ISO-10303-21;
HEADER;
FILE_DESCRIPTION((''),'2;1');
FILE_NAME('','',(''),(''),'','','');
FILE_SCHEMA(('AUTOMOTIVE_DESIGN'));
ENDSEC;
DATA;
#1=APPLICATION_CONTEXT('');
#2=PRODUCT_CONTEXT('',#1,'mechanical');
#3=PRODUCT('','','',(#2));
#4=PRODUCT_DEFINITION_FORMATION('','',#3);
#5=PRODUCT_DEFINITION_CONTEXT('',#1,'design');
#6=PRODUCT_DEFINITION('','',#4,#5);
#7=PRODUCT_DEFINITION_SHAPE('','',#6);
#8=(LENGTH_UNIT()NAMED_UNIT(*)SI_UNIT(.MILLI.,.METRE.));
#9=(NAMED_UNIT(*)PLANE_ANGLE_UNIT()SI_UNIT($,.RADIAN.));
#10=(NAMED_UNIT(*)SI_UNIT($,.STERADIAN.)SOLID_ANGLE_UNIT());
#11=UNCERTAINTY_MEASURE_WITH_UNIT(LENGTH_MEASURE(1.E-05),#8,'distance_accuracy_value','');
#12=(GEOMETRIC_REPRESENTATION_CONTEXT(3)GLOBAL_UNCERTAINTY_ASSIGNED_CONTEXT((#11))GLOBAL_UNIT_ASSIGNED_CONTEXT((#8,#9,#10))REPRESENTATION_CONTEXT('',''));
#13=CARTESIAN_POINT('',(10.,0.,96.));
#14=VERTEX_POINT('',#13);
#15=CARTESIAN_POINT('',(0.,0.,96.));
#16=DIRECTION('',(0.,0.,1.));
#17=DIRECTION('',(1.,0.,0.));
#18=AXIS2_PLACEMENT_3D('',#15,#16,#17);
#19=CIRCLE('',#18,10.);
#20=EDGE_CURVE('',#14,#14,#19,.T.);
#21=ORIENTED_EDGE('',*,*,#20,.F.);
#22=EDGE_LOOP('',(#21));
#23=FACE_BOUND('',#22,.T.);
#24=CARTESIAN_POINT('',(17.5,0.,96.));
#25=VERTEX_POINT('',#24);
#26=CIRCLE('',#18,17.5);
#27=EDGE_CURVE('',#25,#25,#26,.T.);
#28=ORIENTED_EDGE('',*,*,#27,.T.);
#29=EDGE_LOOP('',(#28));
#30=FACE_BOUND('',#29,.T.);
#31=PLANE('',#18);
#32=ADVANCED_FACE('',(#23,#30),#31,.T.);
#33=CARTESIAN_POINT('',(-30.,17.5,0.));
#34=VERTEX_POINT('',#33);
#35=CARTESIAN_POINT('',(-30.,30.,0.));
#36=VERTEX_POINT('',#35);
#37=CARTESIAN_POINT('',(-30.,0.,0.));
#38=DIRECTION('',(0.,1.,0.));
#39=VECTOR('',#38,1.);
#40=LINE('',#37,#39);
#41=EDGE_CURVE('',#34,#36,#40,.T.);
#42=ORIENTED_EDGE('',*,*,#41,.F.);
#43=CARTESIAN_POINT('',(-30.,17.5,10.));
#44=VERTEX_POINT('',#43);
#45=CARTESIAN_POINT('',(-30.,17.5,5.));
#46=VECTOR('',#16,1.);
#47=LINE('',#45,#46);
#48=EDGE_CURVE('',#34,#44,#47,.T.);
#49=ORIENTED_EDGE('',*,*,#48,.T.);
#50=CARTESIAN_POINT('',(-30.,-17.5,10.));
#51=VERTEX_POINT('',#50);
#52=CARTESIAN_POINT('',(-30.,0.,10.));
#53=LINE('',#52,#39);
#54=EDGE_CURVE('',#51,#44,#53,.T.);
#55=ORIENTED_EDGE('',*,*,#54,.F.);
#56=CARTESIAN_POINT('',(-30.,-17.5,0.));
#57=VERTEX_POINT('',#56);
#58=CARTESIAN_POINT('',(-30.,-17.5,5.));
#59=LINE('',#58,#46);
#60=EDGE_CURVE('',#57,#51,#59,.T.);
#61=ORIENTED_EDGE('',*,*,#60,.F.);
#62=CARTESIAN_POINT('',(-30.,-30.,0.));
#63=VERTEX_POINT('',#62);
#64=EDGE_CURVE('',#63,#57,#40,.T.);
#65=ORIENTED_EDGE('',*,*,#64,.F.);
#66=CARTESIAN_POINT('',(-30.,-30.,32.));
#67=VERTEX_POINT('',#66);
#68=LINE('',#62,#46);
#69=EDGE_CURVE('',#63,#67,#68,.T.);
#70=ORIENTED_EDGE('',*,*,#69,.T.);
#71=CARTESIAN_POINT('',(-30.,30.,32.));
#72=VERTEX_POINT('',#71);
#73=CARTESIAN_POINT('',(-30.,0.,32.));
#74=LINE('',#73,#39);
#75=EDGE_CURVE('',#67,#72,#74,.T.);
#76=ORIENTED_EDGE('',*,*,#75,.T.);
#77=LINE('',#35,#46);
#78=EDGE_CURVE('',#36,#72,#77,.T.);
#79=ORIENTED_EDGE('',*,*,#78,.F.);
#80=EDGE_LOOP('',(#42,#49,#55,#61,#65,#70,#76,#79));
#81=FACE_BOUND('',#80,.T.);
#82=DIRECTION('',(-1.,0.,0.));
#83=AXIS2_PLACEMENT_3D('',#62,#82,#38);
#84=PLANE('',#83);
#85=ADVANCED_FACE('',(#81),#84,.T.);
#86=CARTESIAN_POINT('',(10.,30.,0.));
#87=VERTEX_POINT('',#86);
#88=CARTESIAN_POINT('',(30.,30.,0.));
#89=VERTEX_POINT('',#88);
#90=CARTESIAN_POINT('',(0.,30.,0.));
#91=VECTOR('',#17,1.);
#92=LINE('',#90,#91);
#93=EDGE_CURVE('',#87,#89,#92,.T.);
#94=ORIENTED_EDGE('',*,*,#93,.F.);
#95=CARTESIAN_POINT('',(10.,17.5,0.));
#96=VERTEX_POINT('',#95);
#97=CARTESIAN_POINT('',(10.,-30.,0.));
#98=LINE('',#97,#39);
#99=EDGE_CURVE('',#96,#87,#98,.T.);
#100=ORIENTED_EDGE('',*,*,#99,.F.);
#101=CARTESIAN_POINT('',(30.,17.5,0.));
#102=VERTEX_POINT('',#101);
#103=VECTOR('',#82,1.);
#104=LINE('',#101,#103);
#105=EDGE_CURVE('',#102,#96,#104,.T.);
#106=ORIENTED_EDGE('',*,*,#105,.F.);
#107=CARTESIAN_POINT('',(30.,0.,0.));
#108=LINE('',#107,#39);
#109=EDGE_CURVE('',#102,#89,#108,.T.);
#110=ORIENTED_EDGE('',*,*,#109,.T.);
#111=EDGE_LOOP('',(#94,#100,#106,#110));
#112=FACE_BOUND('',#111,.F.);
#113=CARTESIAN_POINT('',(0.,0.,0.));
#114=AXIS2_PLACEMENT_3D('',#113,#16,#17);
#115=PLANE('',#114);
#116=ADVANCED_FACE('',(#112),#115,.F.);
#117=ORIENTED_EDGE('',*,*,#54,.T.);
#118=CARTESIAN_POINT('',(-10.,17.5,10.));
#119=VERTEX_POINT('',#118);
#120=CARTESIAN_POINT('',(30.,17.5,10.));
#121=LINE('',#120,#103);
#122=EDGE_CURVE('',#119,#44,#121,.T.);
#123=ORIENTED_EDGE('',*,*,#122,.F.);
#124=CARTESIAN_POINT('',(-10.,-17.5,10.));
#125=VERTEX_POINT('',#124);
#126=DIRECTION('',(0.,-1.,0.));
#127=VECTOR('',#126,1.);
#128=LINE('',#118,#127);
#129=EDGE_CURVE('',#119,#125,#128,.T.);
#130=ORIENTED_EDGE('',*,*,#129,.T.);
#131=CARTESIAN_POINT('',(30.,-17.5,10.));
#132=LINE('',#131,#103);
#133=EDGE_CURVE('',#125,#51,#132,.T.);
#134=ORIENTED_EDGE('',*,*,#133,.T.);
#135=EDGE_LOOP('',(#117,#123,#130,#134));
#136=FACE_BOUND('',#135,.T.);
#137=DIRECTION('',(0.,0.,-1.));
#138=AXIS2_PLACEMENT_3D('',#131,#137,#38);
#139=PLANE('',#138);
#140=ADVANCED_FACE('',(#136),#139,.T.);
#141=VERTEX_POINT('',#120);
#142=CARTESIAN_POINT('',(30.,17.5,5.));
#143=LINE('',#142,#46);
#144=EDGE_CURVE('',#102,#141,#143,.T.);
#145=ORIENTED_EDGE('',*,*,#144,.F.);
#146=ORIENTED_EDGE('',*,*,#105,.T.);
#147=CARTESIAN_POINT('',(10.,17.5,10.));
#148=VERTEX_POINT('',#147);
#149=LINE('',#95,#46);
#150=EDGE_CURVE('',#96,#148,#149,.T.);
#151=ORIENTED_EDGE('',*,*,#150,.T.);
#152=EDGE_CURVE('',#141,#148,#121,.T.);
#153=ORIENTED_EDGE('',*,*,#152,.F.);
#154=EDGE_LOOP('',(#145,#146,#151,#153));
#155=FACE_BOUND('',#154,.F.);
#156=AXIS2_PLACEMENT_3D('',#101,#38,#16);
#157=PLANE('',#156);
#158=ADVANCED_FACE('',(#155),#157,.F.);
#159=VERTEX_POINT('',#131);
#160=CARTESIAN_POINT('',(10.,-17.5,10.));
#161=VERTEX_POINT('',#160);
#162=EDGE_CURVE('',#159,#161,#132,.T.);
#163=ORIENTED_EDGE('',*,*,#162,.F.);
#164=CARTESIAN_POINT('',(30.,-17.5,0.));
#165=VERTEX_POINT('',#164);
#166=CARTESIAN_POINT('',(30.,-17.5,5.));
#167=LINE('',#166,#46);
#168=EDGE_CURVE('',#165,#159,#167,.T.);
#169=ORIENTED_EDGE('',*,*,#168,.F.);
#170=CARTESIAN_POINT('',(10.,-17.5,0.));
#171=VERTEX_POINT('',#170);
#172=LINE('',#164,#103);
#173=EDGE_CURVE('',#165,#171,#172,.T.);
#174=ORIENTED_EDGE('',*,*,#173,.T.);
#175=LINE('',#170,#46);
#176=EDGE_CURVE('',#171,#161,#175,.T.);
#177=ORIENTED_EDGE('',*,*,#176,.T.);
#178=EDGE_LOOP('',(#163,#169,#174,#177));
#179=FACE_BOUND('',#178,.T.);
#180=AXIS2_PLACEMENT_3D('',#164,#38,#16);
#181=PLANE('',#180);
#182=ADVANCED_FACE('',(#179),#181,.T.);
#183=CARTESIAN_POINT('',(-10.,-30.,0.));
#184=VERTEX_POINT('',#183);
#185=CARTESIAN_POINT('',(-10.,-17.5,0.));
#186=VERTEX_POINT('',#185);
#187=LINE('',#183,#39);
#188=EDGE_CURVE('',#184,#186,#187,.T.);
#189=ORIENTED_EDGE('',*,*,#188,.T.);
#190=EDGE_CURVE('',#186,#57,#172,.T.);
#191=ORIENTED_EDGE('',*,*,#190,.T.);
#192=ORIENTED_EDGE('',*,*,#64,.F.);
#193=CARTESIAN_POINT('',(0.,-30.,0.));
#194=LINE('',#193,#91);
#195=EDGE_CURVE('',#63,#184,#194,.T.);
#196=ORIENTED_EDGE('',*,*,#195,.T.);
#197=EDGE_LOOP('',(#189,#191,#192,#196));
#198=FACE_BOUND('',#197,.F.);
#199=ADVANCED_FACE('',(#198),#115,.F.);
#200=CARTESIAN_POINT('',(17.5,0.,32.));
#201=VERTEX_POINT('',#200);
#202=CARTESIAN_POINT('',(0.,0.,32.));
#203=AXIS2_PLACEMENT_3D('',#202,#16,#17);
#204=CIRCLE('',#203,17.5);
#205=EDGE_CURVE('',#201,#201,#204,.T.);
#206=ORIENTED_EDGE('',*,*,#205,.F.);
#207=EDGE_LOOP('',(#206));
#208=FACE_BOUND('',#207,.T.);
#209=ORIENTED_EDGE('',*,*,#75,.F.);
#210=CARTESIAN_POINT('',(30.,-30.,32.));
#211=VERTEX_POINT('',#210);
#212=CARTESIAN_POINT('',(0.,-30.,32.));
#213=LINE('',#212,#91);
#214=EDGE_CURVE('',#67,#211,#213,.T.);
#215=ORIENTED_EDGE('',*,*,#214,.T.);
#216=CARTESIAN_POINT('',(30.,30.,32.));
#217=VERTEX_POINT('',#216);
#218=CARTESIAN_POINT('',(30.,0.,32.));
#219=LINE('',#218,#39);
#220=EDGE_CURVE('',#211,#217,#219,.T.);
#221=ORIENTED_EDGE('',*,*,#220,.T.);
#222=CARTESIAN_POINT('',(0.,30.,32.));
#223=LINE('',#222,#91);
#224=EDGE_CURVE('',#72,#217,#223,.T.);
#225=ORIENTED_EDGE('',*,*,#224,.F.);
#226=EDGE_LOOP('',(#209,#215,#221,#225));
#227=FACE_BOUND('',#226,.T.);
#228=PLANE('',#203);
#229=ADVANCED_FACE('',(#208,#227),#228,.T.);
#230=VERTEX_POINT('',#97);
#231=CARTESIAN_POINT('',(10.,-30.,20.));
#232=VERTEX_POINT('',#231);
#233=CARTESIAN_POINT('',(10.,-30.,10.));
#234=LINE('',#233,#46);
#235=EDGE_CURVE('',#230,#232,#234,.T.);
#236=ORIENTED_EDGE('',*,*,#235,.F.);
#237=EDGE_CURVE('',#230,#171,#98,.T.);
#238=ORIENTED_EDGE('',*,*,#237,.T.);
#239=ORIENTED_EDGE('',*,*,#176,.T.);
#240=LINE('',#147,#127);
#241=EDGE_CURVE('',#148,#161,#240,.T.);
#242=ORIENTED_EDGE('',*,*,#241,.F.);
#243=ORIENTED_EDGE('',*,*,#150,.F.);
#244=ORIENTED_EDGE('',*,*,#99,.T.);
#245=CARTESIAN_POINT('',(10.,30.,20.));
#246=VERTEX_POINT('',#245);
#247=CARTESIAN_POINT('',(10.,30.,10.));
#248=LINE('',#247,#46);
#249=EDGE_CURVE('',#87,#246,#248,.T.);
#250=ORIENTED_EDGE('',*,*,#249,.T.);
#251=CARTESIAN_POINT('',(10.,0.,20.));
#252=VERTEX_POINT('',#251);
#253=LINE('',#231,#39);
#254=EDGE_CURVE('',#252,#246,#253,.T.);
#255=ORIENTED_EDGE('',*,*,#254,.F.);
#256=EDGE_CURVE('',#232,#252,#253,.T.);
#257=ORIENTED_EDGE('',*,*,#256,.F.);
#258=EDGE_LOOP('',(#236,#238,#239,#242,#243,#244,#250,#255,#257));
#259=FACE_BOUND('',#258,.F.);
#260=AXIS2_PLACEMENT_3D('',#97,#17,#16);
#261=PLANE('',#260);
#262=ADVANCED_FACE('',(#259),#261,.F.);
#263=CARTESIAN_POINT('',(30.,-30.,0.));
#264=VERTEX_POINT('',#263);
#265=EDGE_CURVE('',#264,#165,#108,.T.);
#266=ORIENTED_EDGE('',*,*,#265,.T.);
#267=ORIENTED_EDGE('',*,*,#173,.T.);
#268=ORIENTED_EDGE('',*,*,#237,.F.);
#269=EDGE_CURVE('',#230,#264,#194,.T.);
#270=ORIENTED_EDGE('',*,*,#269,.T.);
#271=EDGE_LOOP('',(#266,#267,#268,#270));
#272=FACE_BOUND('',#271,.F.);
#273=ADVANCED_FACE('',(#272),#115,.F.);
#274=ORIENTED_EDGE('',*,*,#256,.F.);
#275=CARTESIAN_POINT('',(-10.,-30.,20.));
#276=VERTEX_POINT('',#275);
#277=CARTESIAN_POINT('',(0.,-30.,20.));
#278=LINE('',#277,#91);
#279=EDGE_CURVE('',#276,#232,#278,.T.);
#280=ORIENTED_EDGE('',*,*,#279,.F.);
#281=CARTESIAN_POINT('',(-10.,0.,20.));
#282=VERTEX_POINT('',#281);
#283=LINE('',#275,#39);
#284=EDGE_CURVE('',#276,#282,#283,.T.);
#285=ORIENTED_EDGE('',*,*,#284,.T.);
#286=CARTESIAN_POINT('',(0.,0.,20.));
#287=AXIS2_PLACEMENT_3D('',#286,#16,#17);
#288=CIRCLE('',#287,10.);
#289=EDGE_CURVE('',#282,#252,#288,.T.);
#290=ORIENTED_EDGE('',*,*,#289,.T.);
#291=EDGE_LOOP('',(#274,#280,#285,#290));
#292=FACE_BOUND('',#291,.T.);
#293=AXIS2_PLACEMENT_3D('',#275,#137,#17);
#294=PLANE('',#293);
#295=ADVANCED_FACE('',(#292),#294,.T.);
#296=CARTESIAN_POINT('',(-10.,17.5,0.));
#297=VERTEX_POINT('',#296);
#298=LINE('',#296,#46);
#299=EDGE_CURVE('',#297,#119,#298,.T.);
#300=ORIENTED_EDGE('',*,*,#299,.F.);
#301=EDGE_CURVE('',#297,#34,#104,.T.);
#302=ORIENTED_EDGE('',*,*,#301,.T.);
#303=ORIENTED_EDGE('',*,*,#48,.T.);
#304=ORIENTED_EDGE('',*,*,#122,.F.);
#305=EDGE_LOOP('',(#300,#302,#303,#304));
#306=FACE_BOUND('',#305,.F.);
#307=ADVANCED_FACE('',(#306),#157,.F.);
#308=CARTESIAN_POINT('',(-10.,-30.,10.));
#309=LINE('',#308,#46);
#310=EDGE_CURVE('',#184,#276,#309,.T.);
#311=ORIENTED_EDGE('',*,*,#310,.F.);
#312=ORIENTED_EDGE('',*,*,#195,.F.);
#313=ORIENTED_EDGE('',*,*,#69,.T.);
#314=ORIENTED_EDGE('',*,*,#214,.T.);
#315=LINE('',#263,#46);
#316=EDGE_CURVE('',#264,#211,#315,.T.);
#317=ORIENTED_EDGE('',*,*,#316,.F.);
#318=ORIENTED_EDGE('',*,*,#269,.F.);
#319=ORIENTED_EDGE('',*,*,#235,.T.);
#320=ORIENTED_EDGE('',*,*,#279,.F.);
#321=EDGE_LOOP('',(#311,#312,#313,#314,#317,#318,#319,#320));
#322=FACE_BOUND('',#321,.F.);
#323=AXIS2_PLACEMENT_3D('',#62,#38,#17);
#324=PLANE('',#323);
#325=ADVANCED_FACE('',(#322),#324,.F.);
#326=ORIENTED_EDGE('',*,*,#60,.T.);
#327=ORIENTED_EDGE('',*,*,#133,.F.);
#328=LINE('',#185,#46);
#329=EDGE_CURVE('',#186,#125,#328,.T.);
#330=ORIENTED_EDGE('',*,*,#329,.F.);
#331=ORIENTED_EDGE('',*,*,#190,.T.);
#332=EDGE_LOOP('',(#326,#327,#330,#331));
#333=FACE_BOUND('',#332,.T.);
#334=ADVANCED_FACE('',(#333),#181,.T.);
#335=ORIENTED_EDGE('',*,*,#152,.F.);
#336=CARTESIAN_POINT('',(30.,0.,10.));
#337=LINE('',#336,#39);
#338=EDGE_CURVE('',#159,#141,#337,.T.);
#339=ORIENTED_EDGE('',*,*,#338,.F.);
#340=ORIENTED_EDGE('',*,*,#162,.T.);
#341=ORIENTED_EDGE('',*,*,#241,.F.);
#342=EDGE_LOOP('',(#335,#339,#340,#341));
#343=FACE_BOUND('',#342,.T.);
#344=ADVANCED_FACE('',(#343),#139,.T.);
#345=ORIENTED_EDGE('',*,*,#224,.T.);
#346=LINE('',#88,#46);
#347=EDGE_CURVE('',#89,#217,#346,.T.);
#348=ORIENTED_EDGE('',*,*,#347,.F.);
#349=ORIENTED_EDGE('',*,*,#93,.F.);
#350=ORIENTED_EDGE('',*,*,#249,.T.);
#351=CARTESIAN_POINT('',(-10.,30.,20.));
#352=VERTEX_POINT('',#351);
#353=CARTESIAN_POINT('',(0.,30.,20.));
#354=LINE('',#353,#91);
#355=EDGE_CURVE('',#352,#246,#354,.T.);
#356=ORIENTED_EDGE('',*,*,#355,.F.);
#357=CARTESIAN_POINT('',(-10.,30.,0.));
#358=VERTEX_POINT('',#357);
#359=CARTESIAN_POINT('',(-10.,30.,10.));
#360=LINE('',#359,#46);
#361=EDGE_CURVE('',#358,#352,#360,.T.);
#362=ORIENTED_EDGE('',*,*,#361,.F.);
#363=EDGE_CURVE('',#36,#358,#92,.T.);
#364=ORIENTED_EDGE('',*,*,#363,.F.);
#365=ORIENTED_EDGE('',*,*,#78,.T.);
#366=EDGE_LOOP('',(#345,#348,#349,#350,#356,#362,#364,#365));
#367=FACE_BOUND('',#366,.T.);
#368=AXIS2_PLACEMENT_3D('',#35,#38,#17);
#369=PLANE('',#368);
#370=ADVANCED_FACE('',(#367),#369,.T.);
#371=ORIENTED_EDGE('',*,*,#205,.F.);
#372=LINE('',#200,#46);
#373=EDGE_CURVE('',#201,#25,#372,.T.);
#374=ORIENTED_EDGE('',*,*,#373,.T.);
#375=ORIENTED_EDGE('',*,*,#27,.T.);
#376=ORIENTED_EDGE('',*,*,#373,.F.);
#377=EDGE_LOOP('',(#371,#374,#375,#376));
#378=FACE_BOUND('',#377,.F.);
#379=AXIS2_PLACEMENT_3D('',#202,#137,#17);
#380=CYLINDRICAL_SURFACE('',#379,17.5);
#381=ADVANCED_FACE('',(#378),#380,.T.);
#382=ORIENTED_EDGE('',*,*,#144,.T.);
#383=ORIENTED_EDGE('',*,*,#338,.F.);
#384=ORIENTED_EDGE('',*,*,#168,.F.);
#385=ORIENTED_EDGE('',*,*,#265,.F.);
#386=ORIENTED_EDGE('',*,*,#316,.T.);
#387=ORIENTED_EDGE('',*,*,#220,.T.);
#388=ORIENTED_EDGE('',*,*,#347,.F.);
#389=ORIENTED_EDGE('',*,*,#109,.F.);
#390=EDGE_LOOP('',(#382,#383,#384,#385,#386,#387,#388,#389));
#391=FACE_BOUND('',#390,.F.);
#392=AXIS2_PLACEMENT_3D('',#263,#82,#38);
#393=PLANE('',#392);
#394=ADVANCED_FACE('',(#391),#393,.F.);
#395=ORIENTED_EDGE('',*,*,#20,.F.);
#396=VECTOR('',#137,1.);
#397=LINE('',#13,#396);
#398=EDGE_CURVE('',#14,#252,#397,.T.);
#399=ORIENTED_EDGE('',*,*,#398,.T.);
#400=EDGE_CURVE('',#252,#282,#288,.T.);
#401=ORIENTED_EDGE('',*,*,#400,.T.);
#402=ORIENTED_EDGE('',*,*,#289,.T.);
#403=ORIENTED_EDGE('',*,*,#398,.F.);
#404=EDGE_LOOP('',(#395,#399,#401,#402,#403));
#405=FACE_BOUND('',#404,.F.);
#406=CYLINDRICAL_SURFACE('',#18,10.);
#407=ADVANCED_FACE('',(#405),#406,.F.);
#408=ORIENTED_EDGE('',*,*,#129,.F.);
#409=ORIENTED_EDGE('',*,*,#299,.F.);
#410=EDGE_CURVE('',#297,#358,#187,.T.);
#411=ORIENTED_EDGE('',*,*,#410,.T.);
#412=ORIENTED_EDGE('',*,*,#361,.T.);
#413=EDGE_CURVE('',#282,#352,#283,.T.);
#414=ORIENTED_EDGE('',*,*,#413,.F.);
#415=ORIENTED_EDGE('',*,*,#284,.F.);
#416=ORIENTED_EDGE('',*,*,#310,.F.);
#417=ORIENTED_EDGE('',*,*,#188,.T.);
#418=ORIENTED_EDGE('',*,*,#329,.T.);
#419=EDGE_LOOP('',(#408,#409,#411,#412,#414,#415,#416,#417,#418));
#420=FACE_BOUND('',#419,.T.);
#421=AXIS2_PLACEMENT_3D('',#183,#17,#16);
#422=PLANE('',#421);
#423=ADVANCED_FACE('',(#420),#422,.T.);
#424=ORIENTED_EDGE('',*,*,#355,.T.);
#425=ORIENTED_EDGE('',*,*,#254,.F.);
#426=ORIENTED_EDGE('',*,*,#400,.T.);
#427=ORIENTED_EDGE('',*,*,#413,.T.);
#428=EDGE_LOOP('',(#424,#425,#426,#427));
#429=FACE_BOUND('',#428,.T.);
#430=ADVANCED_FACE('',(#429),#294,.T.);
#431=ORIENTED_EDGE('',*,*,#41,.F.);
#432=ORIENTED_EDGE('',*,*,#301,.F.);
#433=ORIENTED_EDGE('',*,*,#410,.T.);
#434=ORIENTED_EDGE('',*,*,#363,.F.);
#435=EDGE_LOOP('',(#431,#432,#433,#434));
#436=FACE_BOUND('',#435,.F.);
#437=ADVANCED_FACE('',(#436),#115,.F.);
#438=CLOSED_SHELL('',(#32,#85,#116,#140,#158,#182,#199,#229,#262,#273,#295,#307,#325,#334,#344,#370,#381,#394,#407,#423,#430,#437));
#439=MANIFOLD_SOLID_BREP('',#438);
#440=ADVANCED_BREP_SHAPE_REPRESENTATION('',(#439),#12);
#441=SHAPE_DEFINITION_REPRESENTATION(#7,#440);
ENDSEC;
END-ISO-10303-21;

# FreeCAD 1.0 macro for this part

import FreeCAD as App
import Part
import Sketcher
from FreeCAD import Vector

doc = App.newDocument("Part")
params = doc.addObject("Spreadsheet::Sheet", "Params")
for row, (alias, value) in enumerate([
    ("sketch1_width", "60 mm"),
    ("pad1_length", "32 mm"),
    ("sketch2_diameter", "35 mm"),
    ("pad2_length", "64 mm"),
    ("sketch3_width", "20 mm"),
    ("pocket1_length", "60 mm"),
    ("sketch4_width", "35 mm"),
    ("sketch4_height", "10 mm"),
    ("pocket2_length", "60 mm"),
    ("sketch5_diameter", "20 mm"),
    ("pocket3_length", "96 mm"),
], start=1):
    params.set(f"A{row}", alias)
    params.set(f"B{row}", "=" + value)
    params.setAlias(f"B{row}", alias)

body = doc.addObject("PartDesign::Body", "Body")

# Sketch on XY plane
sketch1 = doc.addObject("Sketcher::SketchObject", "Sketch")
body.addObject(sketch1)
sketch1.AttachmentSupport = (doc.XY_Plane, [""])
sketch1.MapMode = "FlatFace"
sketch1.addGeometry([
    Part.LineSegment(Vector(-30, 30, 0), Vector(-30, -30, 0)),
    Part.LineSegment(Vector(-30, -30, 0), Vector(30, -30, 0)),
    Part.LineSegment(Vector(30, -30, 0), Vector(30, 30, 0)),
    Part.LineSegment(Vector(30, 30, 0), Vector(-30, 30, 0)),
], False)
sketch1.addConstraint([
    Sketcher.Constraint("Coincident", 0, 2, 1, 1),
    Sketcher.Constraint("Coincident", 1, 2, 2, 1),
    Sketcher.Constraint("Coincident", 2, 2, 3, 1),
    Sketcher.Constraint("Coincident", 3, 2, 0, 1),
    Sketcher.Constraint("Vertical", 0),
    Sketcher.Constraint("Horizontal", 1),
    Sketcher.Constraint("Vertical", 2),
    Sketcher.Constraint("Horizontal", 3),
    Sketcher.Constraint("Symmetric", 0, 2, 2, 2, -1, 1),
    Sketcher.Constraint("Equal", 3, 0),
    Sketcher.Constraint("DistanceX", 1, 1, 1, 2, 60.0),
])
sketch1.setExpression("Constraints[10]", "Params.sketch1_width")
pad1 = doc.addObject("PartDesign::Pad", "Pad")
body.addObject(pad1)
pad1.Profile = sketch1
pad1.setExpression("Length", "Params.pad1_length")

# Sketch on XY plane
sketch2 = doc.addObject("Sketcher::SketchObject", "Sketch001")
body.addObject(sketch2)
sketch2.AttachmentSupport = (doc.XY_Plane, [""])
sketch2.MapMode = "FlatFace"
sketch2.AttachmentOffset = App.Placement(Vector(0, 0, 32), App.Rotation())
sketch2.addGeometry(Part.Circle(Vector(0, 0, 0), Vector(0, 0, 1), 18), False)
sketch2.addConstraint([
    Sketcher.Constraint("Coincident", 0, 3, -1, 1),
    Sketcher.Constraint("Diameter", 0, 35.0),
])
sketch2.setExpression("Constraints[1]", "Params.sketch2_diameter")
pad2 = doc.addObject("PartDesign::Pad", "Pad001")
body.addObject(pad2)
pad2.Profile = sketch2
pad2.setExpression("Length", "Params.pad2_length")

# Sketch on XZ plane
sketch3 = doc.addObject("Sketcher::SketchObject", "Sketch002")
body.addObject(sketch3)
sketch3.AttachmentSupport = (doc.XZ_Plane, [""])
sketch3.MapMode = "FlatFace"
sketch3.AttachmentOffset = App.Placement(Vector(0, 0, 30), App.Rotation())
sketch3.addGeometry([
    Part.LineSegment(Vector(-10, 20, 0), Vector(-10, 0, 0)),
    Part.LineSegment(Vector(-10, 0, 0), Vector(10, 0, 0)),
    Part.LineSegment(Vector(10, 0, 0), Vector(10, 20, 0)),
    Part.LineSegment(Vector(10, 20, 0), Vector(-10, 20, 0)),
], False)
sketch3.addConstraint([
    Sketcher.Constraint("Coincident", 0, 2, 1, 1),
    Sketcher.Constraint("Coincident", 1, 2, 2, 1),
    Sketcher.Constraint("Coincident", 2, 2, 3, 1),
    Sketcher.Constraint("Coincident", 3, 2, 0, 1),
    Sketcher.Constraint("Vertical", 0),
    Sketcher.Constraint("Horizontal", 1),
    Sketcher.Constraint("Vertical", 2),
    Sketcher.Constraint("Horizontal", 3),
    Sketcher.Constraint("Symmetric", 0, 2, 1, 2, -1, 1),
    Sketcher.Constraint("Equal", 3, 0),
    Sketcher.Constraint("DistanceX", 1, 1, 1, 2, 20.0),
])
sketch3.setExpression("Constraints[10]", "Params.sketch3_width")
pocket1 = doc.addObject("PartDesign::Pocket", "Pocket")
body.addObject(pocket1)
pocket1.Profile = sketch3
pocket1.setExpression("Length", "Params.pocket1_length")

# Sketch on YZ plane
sketch4 = doc.addObject("Sketcher::SketchObject", "Sketch003")
body.addObject(sketch4)
sketch4.AttachmentSupport = (doc.YZ_Plane, [""])
sketch4.MapMode = "FlatFace"
sketch4.AttachmentOffset = App.Placement(Vector(0, 0, 30), App.Rotation())
sketch4.addGeometry([
    Part.LineSegment(Vector(-18, 10, 0), Vector(-18, 0, 0)),
    Part.LineSegment(Vector(-18, 0, 0), Vector(18, 0, 0)),
    Part.LineSegment(Vector(18, 0, 0), Vector(18, 10, 0)),
    Part.LineSegment(Vector(18, 10, 0), Vector(-18, 10, 0)),
], False)
sketch4.addConstraint([
    Sketcher.Constraint("Coincident", 0, 2, 1, 1),
    Sketcher.Constraint("Coincident", 1, 2, 2, 1),
    Sketcher.Constraint("Coincident", 2, 2, 3, 1),
    Sketcher.Constraint("Coincident", 3, 2, 0, 1),
    Sketcher.Constraint("Vertical", 0),
    Sketcher.Constraint("Horizontal", 1),
    Sketcher.Constraint("Vertical", 2),
    Sketcher.Constraint("Horizontal", 3),
    Sketcher.Constraint("Symmetric", 0, 2, 1, 2, -1, 1),
    Sketcher.Constraint("DistanceX", 1, 1, 1, 2, 35.0),
    Sketcher.Constraint("DistanceY", 0, 2, 0, 1, 10.0),
])
sketch4.setExpression("Constraints[9]", "Params.sketch4_width")
sketch4.setExpression("Constraints[10]", "Params.sketch4_height")
pocket2 = doc.addObject("PartDesign::Pocket", "Pocket001")
body.addObject(pocket2)
pocket2.Profile = sketch4
pocket2.setExpression("Length", "Params.pocket2_length")

# Sketch on XY plane
sketch5 = doc.addObject("Sketcher::SketchObject", "Sketch004")
body.addObject(sketch5)
sketch5.AttachmentSupport = (doc.XY_Plane, [""])
sketch5.MapMode = "FlatFace"
sketch5.AttachmentOffset = App.Placement(Vector(0, 0, 96), App.Rotation())
sketch5.addGeometry(Part.Circle(Vector(0, 0, 0), Vector(0, 0, 1), 10), False)
sketch5.addConstraint([
    Sketcher.Constraint("Coincident", 0, 3, -1, 1),
    Sketcher.Constraint("Diameter", 0, 20.0),
])
sketch5.setExpression("Constraints[1]", "Params.sketch5_diameter")
pocket3 = doc.addObject("PartDesign::Pocket", "Pocket002")
body.addObject(pocket3)
pocket3.Profile = sketch5
pocket3.setExpression("Length", "Params.pocket3_length")

doc.recompute()
